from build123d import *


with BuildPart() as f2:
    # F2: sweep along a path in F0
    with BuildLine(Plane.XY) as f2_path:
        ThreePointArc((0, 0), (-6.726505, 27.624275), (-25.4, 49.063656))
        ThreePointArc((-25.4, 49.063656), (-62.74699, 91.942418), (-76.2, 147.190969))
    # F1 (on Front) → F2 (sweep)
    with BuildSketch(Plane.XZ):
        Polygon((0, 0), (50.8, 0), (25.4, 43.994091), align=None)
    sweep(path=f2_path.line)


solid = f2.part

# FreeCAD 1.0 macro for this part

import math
import FreeCAD as App
import Part
import Sketcher
Q = App.Units.Quantity


def add_polygon(sketch, points):
    """Adds a closed chain of lines whose ends are joined by coincident constraints."""
    first, n = sketch.GeometryCount, len(points)
    for a, b in zip(points, points[1:] + points[:1]):
        sketch.addGeometry(Part.LineSegment(App.Vector(*a, 0), App.Vector(*b, 0)), False)
    for i in range(n):
        sketch.addConstraint(Sketcher.Constraint("Coincident", first + i, 2, first + (i + 1) % n, 1))

doc = App.newDocument("Part")
body = doc.addObject("PartDesign::Body", "Body")

sketch1 = body.newObject("Sketcher::SketchObject", "Sketch")
sketch1.AttachmentSupport = (doc.getObject("XZ_Plane"), [""])
sketch1.MapMode = "FlatFace"
add_polygon(sketch1, [(0, 0), (50.8, 0), (25.4, 43.994091)])
sketch1.addConstraint([
    Sketcher.Constraint("Horizontal", 0),
    Sketcher.Constraint("Coincident", 2, 2, -1, 1),
    Sketcher.Constraint("Equal", 1, 2),
    Sketcher.Constraint("DistanceX", 0, 1, 0, 2, Q("2 in")),
    Sketcher.Constraint("Distance", 1, Q("2 in")),
])

sketch2 = body.newObject("Sketcher::SketchObject", "Sketch001")
sketch2.AttachmentSupport = (doc.getObject("XY_Plane"), [""])
sketch2.MapMode = "FlatFace"
sketch2.addGeometry([
    Part.ArcOfCircle(Part.Circle(App.Vector(-60.08666, 0, 0), App.Vector(0, 0, 1), 60.08666), math.radians(0), math.radians(54.740736)),
    Part.ArcOfCircle(Part.Circle(App.Vector(43.973321, 147.190968, 0), App.Vector(0, 0, 1), 120.173321), math.radians(180), math.radians(234.740736)),
], False)
sketch2.addConstraint([
    Sketcher.Constraint("Tangent", 0, 2, 1, 2),
    Sketcher.Constraint("Coincident", 0, 1, -1, 1),
    Sketcher.Constraint("PointOnObject", 0, 3, -1),
    Sketcher.Constraint("DistanceX", 0, 2, -1, 1, Q("1 in")),
    Sketcher.Constraint("DistanceX", 1, 1, -1, 1, Q("3 in")),
    Sketcher.Constraint("Radius", 0, 60.08666),
    Sketcher.Constraint("DistanceY", -1, 1, 1, 1, 147.190969),
])
doc.recompute()

additivepipe = body.newObject("PartDesign::AdditivePipe", "AdditivePipe")
additivepipe.Profile = sketch1
additivepipe.Spine = (sketch2, ["Edge1", "Edge2"])

doc.recompute()
